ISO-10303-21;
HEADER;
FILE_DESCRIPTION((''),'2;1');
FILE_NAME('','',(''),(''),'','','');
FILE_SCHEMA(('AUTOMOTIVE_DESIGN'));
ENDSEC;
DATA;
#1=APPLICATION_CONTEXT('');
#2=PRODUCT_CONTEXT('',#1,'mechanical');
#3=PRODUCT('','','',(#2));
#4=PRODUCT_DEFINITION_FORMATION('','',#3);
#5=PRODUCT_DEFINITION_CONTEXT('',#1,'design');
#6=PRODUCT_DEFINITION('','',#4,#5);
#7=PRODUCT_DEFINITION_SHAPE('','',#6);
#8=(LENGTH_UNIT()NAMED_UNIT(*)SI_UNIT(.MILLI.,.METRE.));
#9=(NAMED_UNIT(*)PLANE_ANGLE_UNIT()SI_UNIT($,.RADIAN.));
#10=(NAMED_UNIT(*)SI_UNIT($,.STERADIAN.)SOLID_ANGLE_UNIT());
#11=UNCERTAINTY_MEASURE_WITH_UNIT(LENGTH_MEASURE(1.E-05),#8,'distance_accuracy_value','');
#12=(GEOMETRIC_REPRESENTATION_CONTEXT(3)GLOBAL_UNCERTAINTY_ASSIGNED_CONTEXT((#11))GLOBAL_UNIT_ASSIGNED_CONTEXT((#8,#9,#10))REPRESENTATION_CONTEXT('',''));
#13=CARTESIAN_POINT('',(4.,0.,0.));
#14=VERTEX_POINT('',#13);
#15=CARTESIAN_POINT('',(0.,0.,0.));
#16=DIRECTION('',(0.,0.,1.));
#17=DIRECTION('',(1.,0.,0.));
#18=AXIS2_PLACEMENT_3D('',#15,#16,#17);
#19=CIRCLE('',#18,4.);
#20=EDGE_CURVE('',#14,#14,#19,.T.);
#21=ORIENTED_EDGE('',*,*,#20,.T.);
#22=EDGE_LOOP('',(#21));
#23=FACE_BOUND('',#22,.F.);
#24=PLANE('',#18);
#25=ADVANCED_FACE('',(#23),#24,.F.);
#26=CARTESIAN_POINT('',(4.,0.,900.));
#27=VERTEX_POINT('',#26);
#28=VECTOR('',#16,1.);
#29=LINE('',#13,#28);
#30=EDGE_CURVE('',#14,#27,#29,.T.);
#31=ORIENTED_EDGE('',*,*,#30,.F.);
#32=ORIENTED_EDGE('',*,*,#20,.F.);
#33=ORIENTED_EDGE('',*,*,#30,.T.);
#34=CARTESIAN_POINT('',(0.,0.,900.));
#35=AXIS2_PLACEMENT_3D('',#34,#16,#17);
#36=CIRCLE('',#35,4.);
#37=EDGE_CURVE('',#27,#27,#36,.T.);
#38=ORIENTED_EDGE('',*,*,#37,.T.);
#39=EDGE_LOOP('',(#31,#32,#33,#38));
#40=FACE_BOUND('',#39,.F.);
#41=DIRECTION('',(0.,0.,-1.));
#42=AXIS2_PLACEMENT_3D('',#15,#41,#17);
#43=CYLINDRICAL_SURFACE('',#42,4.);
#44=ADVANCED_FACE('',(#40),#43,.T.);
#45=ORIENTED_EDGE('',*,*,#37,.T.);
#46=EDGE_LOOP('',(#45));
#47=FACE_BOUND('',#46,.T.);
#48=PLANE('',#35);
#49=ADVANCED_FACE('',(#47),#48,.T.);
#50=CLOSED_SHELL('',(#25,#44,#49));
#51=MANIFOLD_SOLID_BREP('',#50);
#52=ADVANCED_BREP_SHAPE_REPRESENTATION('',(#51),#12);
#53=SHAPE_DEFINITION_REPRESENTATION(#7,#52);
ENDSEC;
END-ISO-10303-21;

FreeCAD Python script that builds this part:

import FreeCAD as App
import Part
import Sketcher
from FreeCAD import Vector

doc = App.newDocument("Part")
body = doc.addObject("PartDesign::Body", "Body")

# Sketch on XY plane
sketch1 = body.newObject("Sketcher::SketchObject", "Sketch")
sketch1.AttachmentSupport = (doc.getObject("XY_Plane"), [""])
sketch1.MapMode = "FlatFace"
sketch1.addGeometry(Part.Circle(Vector(0, 0, 0), Vector(0, 0, 1), 4), False)
sketch1.addConstraint([
    Sketcher.Constraint("Coincident", 0, 3, -1, 1),
    Sketcher.Constraint("Diameter", 0, 8.0),
])
pad1 = body.newObject("PartDesign::Pad", "Pad")
pad1.Profile = sketch1
pad1.Length = 900

doc.recompute()
